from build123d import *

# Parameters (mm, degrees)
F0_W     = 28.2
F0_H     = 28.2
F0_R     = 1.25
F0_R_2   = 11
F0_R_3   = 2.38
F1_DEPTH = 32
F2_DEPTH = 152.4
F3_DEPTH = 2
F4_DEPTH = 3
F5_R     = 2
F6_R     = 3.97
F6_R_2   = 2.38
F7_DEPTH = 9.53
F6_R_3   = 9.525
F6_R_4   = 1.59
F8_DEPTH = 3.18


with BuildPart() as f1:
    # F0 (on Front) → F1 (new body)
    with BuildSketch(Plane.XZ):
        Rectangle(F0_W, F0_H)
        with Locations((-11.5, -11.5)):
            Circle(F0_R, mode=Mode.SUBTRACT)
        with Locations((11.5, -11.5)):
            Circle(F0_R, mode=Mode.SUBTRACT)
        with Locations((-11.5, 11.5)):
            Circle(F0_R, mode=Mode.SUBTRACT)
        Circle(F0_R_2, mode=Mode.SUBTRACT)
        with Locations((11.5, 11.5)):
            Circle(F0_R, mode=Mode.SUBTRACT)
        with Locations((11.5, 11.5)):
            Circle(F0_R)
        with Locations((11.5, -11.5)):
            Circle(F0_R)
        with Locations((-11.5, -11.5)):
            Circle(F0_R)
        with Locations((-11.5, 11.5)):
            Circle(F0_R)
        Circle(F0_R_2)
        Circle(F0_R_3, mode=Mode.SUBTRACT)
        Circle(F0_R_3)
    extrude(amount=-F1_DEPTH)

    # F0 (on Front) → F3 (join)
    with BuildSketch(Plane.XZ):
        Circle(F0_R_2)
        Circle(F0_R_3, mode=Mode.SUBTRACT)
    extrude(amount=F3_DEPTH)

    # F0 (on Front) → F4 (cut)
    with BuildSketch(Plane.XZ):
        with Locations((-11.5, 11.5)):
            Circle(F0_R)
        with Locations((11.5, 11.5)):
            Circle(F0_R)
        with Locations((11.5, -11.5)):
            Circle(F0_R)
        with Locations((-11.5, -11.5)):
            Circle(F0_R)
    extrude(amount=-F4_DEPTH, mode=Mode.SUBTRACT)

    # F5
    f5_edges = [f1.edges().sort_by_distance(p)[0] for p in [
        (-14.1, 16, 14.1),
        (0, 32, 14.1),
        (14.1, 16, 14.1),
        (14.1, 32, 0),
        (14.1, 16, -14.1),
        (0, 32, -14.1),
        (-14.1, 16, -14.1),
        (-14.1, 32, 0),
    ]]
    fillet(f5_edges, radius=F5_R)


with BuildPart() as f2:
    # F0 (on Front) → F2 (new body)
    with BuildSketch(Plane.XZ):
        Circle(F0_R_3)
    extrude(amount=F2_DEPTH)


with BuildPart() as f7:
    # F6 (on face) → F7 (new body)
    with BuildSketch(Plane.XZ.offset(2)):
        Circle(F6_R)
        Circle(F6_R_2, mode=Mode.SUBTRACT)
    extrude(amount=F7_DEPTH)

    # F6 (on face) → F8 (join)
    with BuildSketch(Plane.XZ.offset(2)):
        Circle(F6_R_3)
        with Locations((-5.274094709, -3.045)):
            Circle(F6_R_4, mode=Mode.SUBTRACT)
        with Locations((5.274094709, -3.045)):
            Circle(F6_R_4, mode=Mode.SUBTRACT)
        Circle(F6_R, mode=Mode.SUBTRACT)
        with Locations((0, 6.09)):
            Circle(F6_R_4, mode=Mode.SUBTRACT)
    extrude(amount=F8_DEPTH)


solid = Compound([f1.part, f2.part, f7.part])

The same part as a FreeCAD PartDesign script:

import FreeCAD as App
import Part
import Sketcher
from FreeCAD import Vector
Q = App.Units.Quantity


def edges_at(feature, points):
    """Names of the edges that pass closest to the given points."""
    edges = feature.Shape.Edges
    near = lambda p: min(range(len(edges)), key=lambda i: edges[i].distToShape(Part.Vertex(*p))[0])
    return sorted({f"Edge{near(p) + 1}" for p in points})


def add_polygon(sketch, points):
    """Adds a closed chain of lines whose ends are joined by coincident constraints."""
    first, n = sketch.GeometryCount, len(points)
    for a, b in zip(points, points[1:] + points[:1]):
        sketch.addGeometry(Part.LineSegment(App.Vector(*a, 0), App.Vector(*b, 0)), False)
    for i in range(n):
        sketch.addConstraint(Sketcher.Constraint("Coincident", first + i, 2, first + (i + 1) % n, 1))

doc = App.newDocument("Part")
body = doc.addObject("PartDesign::Body", "Body")

sketch1 = doc.addObject("Sketcher::SketchObject", "Sketch")
body.addObject(sketch1)
sketch1.AttachmentSupport = (doc.XZ_Plane, [""])
sketch1.MapMode = "FlatFace"
add_polygon(sketch1, [(-14, 14), (-14, -14), (14, -14), (14, 14)])
sketch1.addConstraint([
    Sketcher.Constraint("Vertical", 0),
    Sketcher.Constraint("Horizontal", 1),
    Sketcher.Constraint("Vertical", 2),
    Sketcher.Constraint("Horizontal", 3),
    Sketcher.Constraint("Symmetric", 0, 2, 2, 2, -1, 1),
    Sketcher.Constraint("Equal", 3, 0),
    Sketcher.Constraint("DistanceX", 1, 1, 1, 2, Q("28.2 mm")),
])
pad1 = doc.addObject("PartDesign::Pad", "Pad")
body.addObject(pad1)
pad1.Profile = sketch1
pad1.Length = 32
pad1.Reversed = True

sketch2 = doc.addObject("Sketcher::SketchObject", "Sketch001")
body.addObject(sketch2)
sketch2.AttachmentSupport = (doc.XZ_Plane, [""])
sketch2.MapMode = "FlatFace"
sketch2.addGeometry([
    Part.Circle(Vector(0, 0, 0), Vector(0, 0, 1), 11),
    Part.Circle(Vector(0, 0, 0), Vector(0, 0, 1), 2.4),
], False)
sketch2.addConstraint([
    Sketcher.Constraint("Coincident", 0, 3, -1, 1),
    Sketcher.Constraint("Coincident", 1, 3, -1, 1),
    Sketcher.Constraint("Diameter", 0, Q("22 mm")),
    Sketcher.Constraint("Diameter", 1, Q("4.76 mm")),
])
pad2 = doc.addObject("PartDesign::Pad", "Pad001")
body.addObject(pad2)
pad2.Profile = sketch2
pad2.Length = 2

sketch3 = doc.addObject("Sketcher::SketchObject", "Sketch002")
body.addObject(sketch3)
sketch3.AttachmentSupport = (doc.XZ_Plane, [""])
sketch3.MapMode = "FlatFace"
sketch3.addGeometry([
    Part.Circle(Vector(-11.5, 11.5, 0), Vector(0, 0, 1), 1.2),
    Part.Circle(Vector(11.5, 11.5, 0), Vector(0, 0, 1), 1.2),
    Part.Circle(Vector(11.5, -11.5, 0), Vector(0, 0, 1), 1.2),
    Part.Circle(Vector(-11.5, -11.5, 0), Vector(0, 0, 1), 1.2),
], False)
sketch3.addConstraint([
    Sketcher.Constraint("Equal", 0, 1),
    Sketcher.Constraint("Equal", 1, 2),
    Sketcher.Constraint("Equal", 2, 3),
    Sketcher.Constraint("Symmetric", 0, 3, 2, 3, -1, 1),
    Sketcher.Constraint("Symmetric", 1, 3, 3, 3, -1, 1),
    Sketcher.Constraint("Symmetric", 0, 3, 1, 3, -2),
    Sketcher.Constraint("Diameter", 0, Q("2.5 mm")),
    Sketcher.Constraint("DistanceX", 0, 3, 1, 3, Q("23 mm")),
    Sketcher.Constraint("DistanceY", 2, 3, 1, 3, Q("23 mm")),
])
pocket1 = doc.addObject("PartDesign::Pocket", "Pocket")
body.addObject(pocket1)
pocket1.Profile = sketch3
pocket1.Length = 3
doc.recompute()

fillet = doc.addObject("PartDesign::Fillet", "Fillet")
body.addObject(fillet)
fillet.Base = (pocket1, edges_at(pocket1, [
    (-14.1, 16, 14.1),
    (0, 32, 14.1),
    (14.1, 16, 14.1),
    (14.1, 32, 0),
    (14.1, 16, -14.1),
    (0, 32, -14.1),
    (-14.1, 16, -14.1),
    (-14.1, 32, 0),
]))
fillet.Radius = 2
body2 = doc.addObject("PartDesign::Body", "Body001")

sketch4 = doc.addObject("Sketcher::SketchObject", "Sketch003")
body2.addObject(sketch4)
sketch4.AttachmentSupport = (doc.getObject("XZ_Plane001"), [""])
sketch4.MapMode = "FlatFace"
sketch4.addGeometry(Part.Circle(Vector(0, 0, 0), Vector(0, 0, 1), 2.4), False)
sketch4.addConstraint([
    Sketcher.Constraint("Coincident", 0, 3, -1, 1),
    Sketcher.Constraint("Diameter", 0, Q("4.76 mm")),
])
pad3 = doc.addObject("PartDesign::Pad", "Pad002")
body2.addObject(pad3)
pad3.Profile = sketch4
pad3.Length = 152.4
body3 = doc.addObject("PartDesign::Body", "Body002")

sketch5 = doc.addObject("Sketcher::SketchObject", "Sketch004")
body3.addObject(sketch5)
sketch5.AttachmentSupport = (doc.getObject("XZ_Plane002"), [""])
sketch5.MapMode = "FlatFace"
sketch5.AttachmentOffset = App.Placement(Vector(0, 0, 2), App.Rotation())
sketch5.addGeometry([
    Part.Circle(Vector(0, 0, 0), Vector(0, 0, 1), 4),
    Part.Circle(Vector(0, 0, 0), Vector(0, 0, 1), 2.4),
], False)
sketch5.addConstraint([
    Sketcher.Constraint("Coincident", 0, 3, -1, 1),
    Sketcher.Constraint("Coincident", 1, 3, -1, 1),
    Sketcher.Constraint("Diameter", 0, Q("7.94 mm")),
    Sketcher.Constraint("Diameter", 1, Q("4.76 mm")),
])
pad4 = doc.addObject("PartDesign::Pad", "Pad003")
body3.addObject(pad4)
pad4.Profile = sketch5
pad4.Length = 9.53

sketch6 = doc.addObject("Sketcher::SketchObject", "Sketch005")
body3.addObject(sketch6)
sketch6.AttachmentSupport = (doc.getObject("XZ_Plane002"), [""])
sketch6.MapMode = "FlatFace"
sketch6.AttachmentOffset = App.Placement(Vector(0, 0, 2), App.Rotation())
sketch6.addGeometry([
    Part.Circle(Vector(0, 0, 0), Vector(0, 0, 1), 9.5),
    Part.Circle(Vector(-5.3, -3, 0), Vector(0, 0, 1), 1.6),
    Part.Circle(Vector(0, 0, 0), Vector(0, 0, 1), 4),
    Part.Circle(Vector(5.3, -3, 0), Vector(0, 0, 1), 1.6),
    Part.Circle(Vector(0, 6.1, 0), Vector(0, 0, 1), 1.6),
], False)
sketch6.addConstraint([
    Sketcher.Constraint("Coincident", 0, 3, -1, 1),
    Sketcher.Constraint("Coincident", 2, 3, -1, 1),
    Sketcher.Constraint("Equal", 1, 3),
    Sketcher.Constraint("Equal", 3, 4),
    Sketcher.Constraint("Symmetric", 1, 3, 3, 3, -2),
    Sketcher.Constraint("PointOnObject", 4, 3, -2),
    Sketcher.Constraint("Diameter", 0, Q("19.05 mm")),
    Sketcher.Constraint("Diameter", 1, Q("3.18 mm")),
    Sketcher.Constraint("Diameter", 2, Q("7.94 mm")),
    Sketcher.Constraint("DistanceY", -1, 1, 4, 3, Q("6.09 mm")),
    Sketcher.Constraint("DistanceY", 1, 3, -1, 1, Q("3.045 mm")),
    Sketcher.Constraint("DistanceX", 1, 3, 3, 3, Q("10.548189 mm")),
])
pad5 = doc.addObject("PartDesign::Pad", "Pad004")
body3.addObject(pad5)
pad5.Profile = sketch6
pad5.Length = 3.18

doc.recompute()
